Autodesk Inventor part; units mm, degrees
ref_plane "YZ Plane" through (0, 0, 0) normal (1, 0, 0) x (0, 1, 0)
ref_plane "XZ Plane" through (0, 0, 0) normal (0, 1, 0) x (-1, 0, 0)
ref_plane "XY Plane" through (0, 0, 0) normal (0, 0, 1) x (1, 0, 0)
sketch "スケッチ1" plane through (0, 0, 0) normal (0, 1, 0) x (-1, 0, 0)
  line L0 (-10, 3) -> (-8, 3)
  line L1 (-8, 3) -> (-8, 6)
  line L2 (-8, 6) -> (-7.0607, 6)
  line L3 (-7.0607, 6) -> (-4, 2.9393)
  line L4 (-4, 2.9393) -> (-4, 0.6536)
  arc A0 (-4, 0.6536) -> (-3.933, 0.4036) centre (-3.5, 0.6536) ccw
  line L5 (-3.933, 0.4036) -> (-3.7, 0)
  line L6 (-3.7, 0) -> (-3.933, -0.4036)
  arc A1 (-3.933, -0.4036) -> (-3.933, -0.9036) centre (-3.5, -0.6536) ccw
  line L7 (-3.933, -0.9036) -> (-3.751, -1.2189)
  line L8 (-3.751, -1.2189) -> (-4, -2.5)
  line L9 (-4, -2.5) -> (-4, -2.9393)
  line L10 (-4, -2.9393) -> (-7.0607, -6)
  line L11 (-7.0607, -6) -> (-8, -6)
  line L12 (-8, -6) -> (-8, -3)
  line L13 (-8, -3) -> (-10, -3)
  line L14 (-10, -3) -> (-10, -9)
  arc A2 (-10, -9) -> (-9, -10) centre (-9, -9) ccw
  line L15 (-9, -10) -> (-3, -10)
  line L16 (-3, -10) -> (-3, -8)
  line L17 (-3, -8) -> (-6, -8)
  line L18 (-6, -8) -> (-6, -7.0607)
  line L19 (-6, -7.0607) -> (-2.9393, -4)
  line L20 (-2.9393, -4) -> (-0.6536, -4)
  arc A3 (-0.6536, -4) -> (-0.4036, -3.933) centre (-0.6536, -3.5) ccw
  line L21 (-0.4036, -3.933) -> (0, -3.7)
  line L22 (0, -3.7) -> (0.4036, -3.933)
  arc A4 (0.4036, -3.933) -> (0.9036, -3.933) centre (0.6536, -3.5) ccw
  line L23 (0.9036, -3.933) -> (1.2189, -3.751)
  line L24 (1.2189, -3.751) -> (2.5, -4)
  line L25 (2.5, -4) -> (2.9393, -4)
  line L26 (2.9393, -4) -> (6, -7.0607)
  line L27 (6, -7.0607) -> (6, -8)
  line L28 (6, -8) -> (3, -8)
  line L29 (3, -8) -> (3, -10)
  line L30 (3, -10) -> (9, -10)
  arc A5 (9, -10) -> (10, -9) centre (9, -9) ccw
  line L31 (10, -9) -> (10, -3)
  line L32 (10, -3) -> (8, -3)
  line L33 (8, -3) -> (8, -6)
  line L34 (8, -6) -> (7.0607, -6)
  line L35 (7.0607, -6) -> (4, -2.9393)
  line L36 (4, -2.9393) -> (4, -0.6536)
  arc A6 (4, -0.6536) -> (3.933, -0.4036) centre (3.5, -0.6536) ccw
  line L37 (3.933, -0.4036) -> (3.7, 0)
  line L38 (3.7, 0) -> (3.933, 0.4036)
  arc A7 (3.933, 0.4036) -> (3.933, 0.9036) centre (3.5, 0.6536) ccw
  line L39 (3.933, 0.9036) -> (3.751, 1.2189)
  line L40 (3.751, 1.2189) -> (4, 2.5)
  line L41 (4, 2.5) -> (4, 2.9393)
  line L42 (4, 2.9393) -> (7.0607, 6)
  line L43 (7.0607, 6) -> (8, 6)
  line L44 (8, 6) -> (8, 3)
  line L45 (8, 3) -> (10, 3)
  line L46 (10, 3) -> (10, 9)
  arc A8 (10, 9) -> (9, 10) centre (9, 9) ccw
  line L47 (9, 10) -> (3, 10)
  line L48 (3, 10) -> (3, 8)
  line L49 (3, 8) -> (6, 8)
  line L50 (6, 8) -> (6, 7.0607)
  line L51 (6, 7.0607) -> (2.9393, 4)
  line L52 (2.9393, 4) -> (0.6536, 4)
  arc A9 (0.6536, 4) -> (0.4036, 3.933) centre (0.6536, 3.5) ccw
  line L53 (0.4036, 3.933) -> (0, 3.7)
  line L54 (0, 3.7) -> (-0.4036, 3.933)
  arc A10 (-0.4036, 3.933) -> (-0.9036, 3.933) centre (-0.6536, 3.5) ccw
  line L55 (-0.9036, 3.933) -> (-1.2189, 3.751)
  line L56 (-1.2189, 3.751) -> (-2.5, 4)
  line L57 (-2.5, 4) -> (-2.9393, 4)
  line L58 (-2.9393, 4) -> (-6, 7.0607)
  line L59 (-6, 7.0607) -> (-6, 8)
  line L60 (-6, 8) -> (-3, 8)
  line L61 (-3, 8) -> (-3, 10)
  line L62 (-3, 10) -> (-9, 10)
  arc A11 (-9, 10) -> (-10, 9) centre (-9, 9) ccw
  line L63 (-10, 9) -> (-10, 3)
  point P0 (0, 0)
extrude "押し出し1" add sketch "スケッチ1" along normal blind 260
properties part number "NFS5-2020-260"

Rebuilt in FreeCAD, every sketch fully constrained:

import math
import FreeCAD as App
import Part
import Sketcher
from FreeCAD import Vector
Q = App.Units.Quantity

doc = App.newDocument("Part")
body = doc.addObject("PartDesign::Body", "Body")

# Sketch on XZ plane
sketch1 = doc.addObject("Sketcher::SketchObject", "Sketch")
body.addObject(sketch1)
sketch1.AttachmentSupport = (doc.XZ_Plane, [""])
sketch1.MapMode = "FlatFace"
sketch1.addGeometry(Part.LineSegment(Vector(10, 9, 0), Vector(10, 3, 0)), False)
sketch1.addGeometry(Part.LineSegment(Vector(10, 3, 0), Vector(8, 3, 0)), False)
sketch1.addGeometry(Part.LineSegment(Vector(8, 3, 0), Vector(8, 6, 0)), False)
sketch1.addGeometry(Part.LineSegment(Vector(8, 6, 0), Vector(7.0607, 6, 0)), False)
sketch1.addGeometry(Part.LineSegment(Vector(7.0607, 6, 0), Vector(4, 2.9393, 0)), False)
sketch1.addGeometry(Part.LineSegment(Vector(4, 2.9393, 0), Vector(4, 0.6536, 0)), False)
sketch1.addGeometry(Part.ArcOfCircle(Part.Circle(Vector(3.5, 0.6536, 0), Vector(0, 0, 1), 0.5), math.radians(-30.000728), math.radians(0)), False)
sketch1.addGeometry(Part.LineSegment(Vector(3.933, 0.4036, 0), Vector(3.7, 0, 0)), False)
sketch1.addGeometry(Part.LineSegment(Vector(3.7, 0, 0), Vector(3.933, -0.4036, 0)), False)
sketch1.addGeometry(Part.ArcOfCircle(Part.Circle(Vector(3.5, -0.6536, 0), Vector(0, 0, 1), 0.499989), math.radians(-30.000728), math.radians(30.000728)), False)
sketch1.addGeometry(Part.LineSegment(Vector(3.933, -0.9036, 0), Vector(3.751, -1.2189, 0)), False)
sketch1.addGeometry(Part.LineSegment(Vector(3.751, -1.2189, 0), Vector(4, -2.5, 0)), False)
sketch1.addGeometry(Part.LineSegment(Vector(4, -2.5, 0), Vector(4, -2.9393, 0)), False)
sketch1.addGeometry(Part.LineSegment(Vector(4, -2.9393, 0), Vector(7.0607, -6, 0)), False)
sketch1.addGeometry(Part.LineSegment(Vector(7.0607, -6, 0), Vector(8, -6, 0)), False)
sketch1.addGeometry(Part.LineSegment(Vector(8, -6, 0), Vector(8, -3, 0)), False)
sketch1.addGeometry(Part.LineSegment(Vector(8, -3, 0), Vector(10, -3, 0)), False)
sketch1.addGeometry(Part.LineSegment(Vector(10, -3, 0), Vector(10, -9, 0)), False)
sketch1.addGeometry(Part.ArcOfCircle(Part.Circle(Vector(9, -9, 0), Vector(0, 0, 1), 1), math.radians(-90), math.radians(0)), False)
sketch1.addGeometry(Part.LineSegment(Vector(9, -10, 0), Vector(3, -10, 0)), False)
sketch1.addGeometry(Part.LineSegment(Vector(3, -10, 0), Vector(3, -8, 0)), False)
sketch1.addGeometry(Part.LineSegment(Vector(3, -8, 0), Vector(6, -8, 0)), False)
sketch1.addGeometry(Part.LineSegment(Vector(6, -8, 0), Vector(6, -7.0607, 0)), False)
sketch1.addGeometry(Part.LineSegment(Vector(6, -7.0607, 0), Vector(2.9393, -4, 0)), False)
sketch1.addGeometry(Part.LineSegment(Vector(2.9393, -4, 0), Vector(0.6536, -4, 0)), False)
sketch1.addGeometry(Part.ArcOfCircle(Part.Circle(Vector(0.6536, -3.5, 0), Vector(0, 0, 1), 0.5), math.radians(-120.000728), math.radians(-90)), False)
sketch1.addGeometry(Part.LineSegment(Vector(0.4036, -3.933, 0), Vector(0, -3.7, 0)), False)
sketch1.addGeometry(Part.LineSegment(Vector(0, -3.7, 0), Vector(-0.4036, -3.933, 0)), False)
sketch1.addGeometry(Part.ArcOfCircle(Part.Circle(Vector(-0.6536, -3.5, 0), Vector(0, 0, 1), 0.499989), math.radians(-120.000728), math.radians(-59.999272)), False)
sketch1.addGeometry(Part.LineSegment(Vector(-0.9036, -3.933, 0), Vector(-1.2189, -3.751, 0)), False)
sketch1.addGeometry(Part.LineSegment(Vector(-1.2189, -3.751, 0), Vector(-2.5, -4, 0)), False)
sketch1.addGeometry(Part.LineSegment(Vector(-2.5, -4, 0), Vector(-2.9393, -4, 0)), False)
sketch1.addGeometry(Part.LineSegment(Vector(-2.9393, -4, 0), Vector(-6, -7.0607, 0)), False)
sketch1.addGeometry(Part.LineSegment(Vector(-6, -7.0607, 0), Vector(-6, -8, 0)), False)
sketch1.addGeometry(Part.LineSegment(Vector(-6, -8, 0), Vector(-3, -8, 0)), False)
sketch1.addGeometry(Part.LineSegment(Vector(-3, -8, 0), Vector(-3, -10, 0)), False)
sketch1.addGeometry(Part.LineSegment(Vector(-3, -10, 0), Vector(-9, -10, 0)), False)
sketch1.addGeometry(Part.ArcOfCircle(Part.Circle(Vector(-9, -9, 0), Vector(0, 0, 1), 1), math.radians(180), math.radians(270)), False)
sketch1.addGeometry(Part.LineSegment(Vector(-10, -9, 0), Vector(-10, -3, 0)), False)
sketch1.addGeometry(Part.LineSegment(Vector(-10, -3, 0), Vector(-8, -3, 0)), False)
sketch1.addGeometry(Part.LineSegment(Vector(-8, -3, 0), Vector(-8, -6, 0)), False)
sketch1.addGeometry(Part.LineSegment(Vector(-8, -6, 0), Vector(-7.0607, -6, 0)), False)
sketch1.addGeometry(Part.LineSegment(Vector(-7.0607, -6, 0), Vector(-4, -2.9393, 0)), False)
sketch1.addGeometry(Part.LineSegment(Vector(-4, -2.9393, 0), Vector(-4, -0.6536, 0)), False)
sketch1.addGeometry(Part.ArcOfCircle(Part.Circle(Vector(-3.5, -0.6536, 0), Vector(0, 0, 1), 0.5), math.radians(149.999272), math.radians(180)), False)
sketch1.addGeometry(Part.LineSegment(Vector(-3.933, -0.4036, 0), Vector(-3.7, 0, 0)), False)
sketch1.addGeometry(Part.LineSegment(Vector(-3.7, 0, 0), Vector(-3.933, 0.4036, 0)), False)
sketch1.addGeometry(Part.ArcOfCircle(Part.Circle(Vector(-3.5, 0.6536, 0), Vector(0, 0, 1), 0.499989), math.radians(149.999272), math.radians(210.000728)), False)
sketch1.addGeometry(Part.LineSegment(Vector(-3.933, 0.9036, 0), Vector(-3.751, 1.2189, 0)), False)
sketch1.addGeometry(Part.LineSegment(Vector(-3.751, 1.2189, 0), Vector(-4, 2.5, 0)), False)
sketch1.addGeometry(Part.LineSegment(Vector(-4, 2.5, 0), Vector(-4, 2.9393, 0)), False)
sketch1.addGeometry(Part.LineSegment(Vector(-4, 2.9393, 0), Vector(-7.0607, 6, 0)), False)
sketch1.addGeometry(Part.LineSegment(Vector(-7.0607, 6, 0), Vector(-8, 6, 0)), False)
sketch1.addGeometry(Part.LineSegment(Vector(-8, 6, 0), Vector(-8, 3, 0)), False)
sketch1.addGeometry(Part.LineSegment(Vector(-8, 3, 0), Vector(-10, 3, 0)), False)
sketch1.addGeometry(Part.LineSegment(Vector(-10, 3, 0), Vector(-10, 9, 0)), False)
sketch1.addGeometry(Part.ArcOfCircle(Part.Circle(Vector(-9, 9, 0), Vector(0, 0, 1), 1), math.radians(90), math.radians(180)), False)
sketch1.addGeometry(Part.LineSegment(Vector(-9, 10, 0), Vector(-3, 10, 0)), False)
sketch1.addGeometry(Part.LineSegment(Vector(-3, 10, 0), Vector(-3, 8, 0)), False)
sketch1.addGeometry(Part.LineSegment(Vector(-3, 8, 0), Vector(-6, 8, 0)), False)
sketch1.addGeometry(Part.LineSegment(Vector(-6, 8, 0), Vector(-6, 7.0607, 0)), False)
sketch1.addGeometry(Part.LineSegment(Vector(-6, 7.0607, 0), Vector(-2.9393, 4, 0)), False)
sketch1.addGeometry(Part.LineSegment(Vector(-2.9393, 4, 0), Vector(-0.6536, 4, 0)), False)
sketch1.addGeometry(Part.ArcOfCircle(Part.Circle(Vector(-0.6536, 3.5, 0), Vector(0, 0, 1), 0.5), math.radians(59.999272), math.radians(90)), False)
sketch1.addGeometry(Part.LineSegment(Vector(-0.4036, 3.933, 0), Vector(0, 3.7, 0)), False)
sketch1.addGeometry(Part.LineSegment(Vector(0, 3.7, 0), Vector(0.4036, 3.933, 0)), False)
sketch1.addGeometry(Part.ArcOfCircle(Part.Circle(Vector(0.6536, 3.5, 0), Vector(0, 0, 1), 0.499989), math.radians(59.999272), math.radians(120.000728)), False)
sketch1.addGeometry(Part.LineSegment(Vector(0.9036, 3.933, 0), Vector(1.2189, 3.751, 0)), False)
sketch1.addGeometry(Part.LineSegment(Vector(1.2189, 3.751, 0), Vector(2.5, 4, 0)), False)
sketch1.addGeometry(Part.LineSegment(Vector(2.5, 4, 0), Vector(2.9393, 4, 0)), False)
sketch1.addGeometry(Part.LineSegment(Vector(2.9393, 4, 0), Vector(6, 7.0607, 0)), False)
sketch1.addGeometry(Part.LineSegment(Vector(6, 7.0607, 0), Vector(6, 8, 0)), False)
sketch1.addGeometry(Part.LineSegment(Vector(6, 8, 0), Vector(3, 8, 0)), False)
sketch1.addGeometry(Part.LineSegment(Vector(3, 8, 0), Vector(3, 10, 0)), False)
sketch1.addGeometry(Part.LineSegment(Vector(3, 10, 0), Vector(9, 10, 0)), False)
sketch1.addGeometry(Part.ArcOfCircle(Part.Circle(Vector(9, 9, 0), Vector(0, 0, 1), 1), math.radians(0), math.radians(90)), False)
sketch1.addConstraint(Sketcher.Constraint("Coincident", 0, 2, 1, 1))
sketch1.addConstraint(Sketcher.Constraint("Coincident", 1, 2, 2, 1))
sketch1.addConstraint(Sketcher.Constraint("Coincident", 2, 2, 3, 1))
sketch1.addConstraint(Sketcher.Constraint("Coincident", 3, 2, 4, 1))
sketch1.addConstraint(Sketcher.Constraint("Coincident", 4, 2, 5, 1))
sketch1.addConstraint(Sketcher.Constraint("Tangent", 5, 2, 6, 2))
sketch1.addConstraint(Sketcher.Constraint("Tangent", 6, 1, 7, 1))
sketch1.addConstraint(Sketcher.Constraint("Coincident", 7, 2, 8, 1))
sketch1.addConstraint(Sketcher.Constraint("Tangent", 8, 2, 9, 2))
sketch1.addConstraint(Sketcher.Constraint("Tangent", 9, 1, 10, 1))
sketch1.addConstraint(Sketcher.Constraint("Coincident", 10, 2, 11, 1))
sketch1.addConstraint(Sketcher.Constraint("Coincident", 11, 2, 12, 1))
sketch1.addConstraint(Sketcher.Constraint("Coincident", 12, 2, 13, 1))
sketch1.addConstraint(Sketcher.Constraint("Coincident", 13, 2, 14, 1))
sketch1.addConstraint(Sketcher.Constraint("Coincident", 14, 2, 15, 1))
sketch1.addConstraint(Sketcher.Constraint("Coincident", 15, 2, 16, 1))
sketch1.addConstraint(Sketcher.Constraint("Coincident", 16, 2, 17, 1))
sketch1.addConstraint(Sketcher.Constraint("Tangent", 17, 2, 18, 2))
sketch1.addConstraint(Sketcher.Constraint("Tangent", 18, 1, 19, 1))
sketch1.addConstraint(Sketcher.Constraint("Coincident", 19, 2, 20, 1))
sketch1.addConstraint(Sketcher.Constraint("Coincident", 20, 2, 21, 1))
sketch1.addConstraint(Sketcher.Constraint("Coincident", 21, 2, 22, 1))
sketch1.addConstraint(Sketcher.Constraint("Coincident", 22, 2, 23, 1))
sketch1.addConstraint(Sketcher.Constraint("Coincident", 23, 2, 24, 1))
sketch1.addConstraint(Sketcher.Constraint("Tangent", 24, 2, 25, 2))
sketch1.addConstraint(Sketcher.Constraint("Tangent", 25, 1, 26, 1))
sketch1.addConstraint(Sketcher.Constraint("Coincident", 26, 2, 27, 1))
sketch1.addConstraint(Sketcher.Constraint("Tangent", 27, 2, 28, 2))
sketch1.addConstraint(Sketcher.Constraint("Tangent", 28, 1, 29, 1))
sketch1.addConstraint(Sketcher.Constraint("Coincident", 29, 2, 30, 1))
sketch1.addConstraint(Sketcher.Constraint("Coincident", 30, 2, 31, 1))
sketch1.addConstraint(Sketcher.Constraint("Coincident", 31, 2, 32, 1))
sketch1.addConstraint(Sketcher.Constraint("Coincident", 32, 2, 33, 1))
sketch1.addConstraint(Sketcher.Constraint("Coincident", 33, 2, 34, 1))
sketch1.addConstraint(Sketcher.Constraint("Coincident", 34, 2, 35, 1))
sketch1.addConstraint(Sketcher.Constraint("Coincident", 35, 2, 36, 1))
sketch1.addConstraint(Sketcher.Constraint("Tangent", 36, 2, 37, 2))
sketch1.addConstraint(Sketcher.Constraint("Tangent", 37, 1, 38, 1))
sketch1.addConstraint(Sketcher.Constraint("Coincident", 38, 2, 39, 1))
sketch1.addConstraint(Sketcher.Constraint("Coincident", 39, 2, 40, 1))
sketch1.addConstraint(Sketcher.Constraint("Coincident", 40, 2, 41, 1))
sketch1.addConstraint(Sketcher.Constraint("Coincident", 41, 2, 42, 1))
sketch1.addConstraint(Sketcher.Constraint("Coincident", 42, 2, 43, 1))
sketch1.addConstraint(Sketcher.Constraint("Tangent", 43, 2, 44, 2))
sketch1.addConstraint(Sketcher.Constraint("Tangent", 44, 1, 45, 1))
sketch1.addConstraint(Sketcher.Constraint("Coincident", 45, 2, 46, 1))
sketch1.addConstraint(Sketcher.Constraint("Tangent", 46, 2, 47, 2))
sketch1.addConstraint(Sketcher.Constraint("Tangent", 47, 1, 48, 1))
sketch1.addConstraint(Sketcher.Constraint("Coincident", 48, 2, 49, 1))
sketch1.addConstraint(Sketcher.Constraint("Coincident", 49, 2, 50, 1))
sketch1.addConstraint(Sketcher.Constraint("Coincident", 50, 2, 51, 1))
sketch1.addConstraint(Sketcher.Constraint("Coincident", 51, 2, 52, 1))
sketch1.addConstraint(Sketcher.Constraint("Coincident", 52, 2, 53, 1))
sketch1.addConstraint(Sketcher.Constraint("Coincident", 53, 2, 54, 1))
sketch1.addConstraint(Sketcher.Constraint("Coincident", 54, 2, 55, 1))
sketch1.addConstraint(Sketcher.Constraint("Tangent", 55, 2, 56, 2))
sketch1.addConstraint(Sketcher.Constraint("Tangent", 56, 1, 57, 1))
sketch1.addConstraint(Sketcher.Constraint("Coincident", 57, 2, 58, 1))
sketch1.addConstraint(Sketcher.Constraint("Coincident", 58, 2, 59, 1))
sketch1.addConstraint(Sketcher.Constraint("Coincident", 59, 2, 60, 1))
sketch1.addConstraint(Sketcher.Constraint("Coincident", 60, 2, 61, 1))
sketch1.addConstraint(Sketcher.Constraint("Coincident", 61, 2, 62, 1))
sketch1.addConstraint(Sketcher.Constraint("Tangent", 62, 2, 63, 2))
sketch1.addConstraint(Sketcher.Constraint("Tangent", 63, 1, 64, 1))
sketch1.addConstraint(Sketcher.Constraint("Coincident", 64, 2, 65, 1))
sketch1.addConstraint(Sketcher.Constraint("Tangent", 65, 2, 66, 2))
sketch1.addConstraint(Sketcher.Constraint("Tangent", 66, 1, 67, 1))
sketch1.addConstraint(Sketcher.Constraint("Coincident", 67, 2, 68, 1))
sketch1.addConstraint(Sketcher.Constraint("Coincident", 68, 2, 69, 1))
sketch1.addConstraint(Sketcher.Constraint("Coincident", 69, 2, 70, 1))
sketch1.addConstraint(Sketcher.Constraint("Coincident", 70, 2, 71, 1))
sketch1.addConstraint(Sketcher.Constraint("Coincident", 71, 2, 72, 1))
sketch1.addConstraint(Sketcher.Constraint("Coincident", 72, 2, 73, 1))
sketch1.addConstraint(Sketcher.Constraint("Coincident", 73, 2, 74, 1))
sketch1.addConstraint(Sketcher.Constraint("Tangent", 74, 2, 75, 2))
sketch1.addConstraint(Sketcher.Constraint("Tangent", 75, 1, 0, 1))
sketch1.addConstraint(Sketcher.Constraint("Vertical", 0))
sketch1.addConstraint(Sketcher.Constraint("Horizontal", 1))
sketch1.addConstraint(Sketcher.Constraint("Vertical", 2))
sketch1.addConstraint(Sketcher.Constraint("Horizontal", 3))
sketch1.addConstraint(Sketcher.Constraint("Vertical", 5))
sketch1.addConstraint(Sketcher.Constraint("Vertical", 12))
sketch1.addConstraint(Sketcher.Constraint("Horizontal", 14))
sketch1.addConstraint(Sketcher.Constraint("Vertical", 15))
sketch1.addConstraint(Sketcher.Constraint("Horizontal", 16))
sketch1.addConstraint(Sketcher.Constraint("Vertical", 17))
sketch1.addConstraint(Sketcher.Constraint("Horizontal", 19))
sketch1.addConstraint(Sketcher.Constraint("Vertical", 20))
sketch1.addConstraint(Sketcher.Constraint("Horizontal", 21))
sketch1.addConstraint(Sketcher.Constraint("Vertical", 22))
sketch1.addConstraint(Sketcher.Constraint("Horizontal", 24))
sketch1.addConstraint(Sketcher.Constraint("Horizontal", 31))
sketch1.addConstraint(Sketcher.Constraint("Vertical", 33))
sketch1.addConstraint(Sketcher.Constraint("Horizontal", 34))
sketch1.addConstraint(Sketcher.Constraint("Vertical", 35))
sketch1.addConstraint(Sketcher.Constraint("Horizontal", 36))
sketch1.addConstraint(Sketcher.Constraint("Vertical", 38))
sketch1.addConstraint(Sketcher.Constraint("Horizontal", 39))
sketch1.addConstraint(Sketcher.Constraint("Vertical", 40))
sketch1.addConstraint(Sketcher.Constraint("Horizontal", 41))
sketch1.addConstraint(Sketcher.Constraint("Vertical", 43))
sketch1.addConstraint(Sketcher.Constraint("Vertical", 50))
sketch1.addConstraint(Sketcher.Constraint("Horizontal", 52))
sketch1.addConstraint(Sketcher.Constraint("Vertical", 53))
sketch1.addConstraint(Sketcher.Constraint("Horizontal", 54))
sketch1.addConstraint(Sketcher.Constraint("Vertical", 55))
sketch1.addConstraint(Sketcher.Constraint("Horizontal", 57))
sketch1.addConstraint(Sketcher.Constraint("Vertical", 58))
sketch1.addConstraint(Sketcher.Constraint("Horizontal", 59))
sketch1.addConstraint(Sketcher.Constraint("Vertical", 60))
sketch1.addConstraint(Sketcher.Constraint("Horizontal", 62))
sketch1.addConstraint(Sketcher.Constraint("Horizontal", 69))
sketch1.addConstraint(Sketcher.Constraint("Vertical", 71))
sketch1.addConstraint(Sketcher.Constraint("Horizontal", 72))
sketch1.addConstraint(Sketcher.Constraint("Vertical", 73))
sketch1.addConstraint(Sketcher.Constraint("Horizontal", 74))
sketch1.addConstraint(Sketcher.Constraint("Equal", 6, 9))
sketch1.addConstraint(Sketcher.Constraint("Equal", 9, 25))
sketch1.addConstraint(Sketcher.Constraint("Equal", 25, 28))
sketch1.addConstraint(Sketcher.Constraint("Equal", 18, 37))
sketch1.addConstraint(Sketcher.Constraint("Equal", 28, 44))
sketch1.addConstraint(Sketcher.Constraint("Equal", 44, 47))
sketch1.addConstraint(Sketcher.Constraint("Equal", 37, 56))
sketch1.addConstraint(Sketcher.Constraint("Equal", 47, 63))
sketch1.addConstraint(Sketcher.Constraint("Equal", 63, 66))
sketch1.addConstraint(Sketcher.Constraint("Equal", 56, 75))
sketch1.addConstraint(Sketcher.Constraint("Symmetric", 6, 3, 44, 3, -1, 1))
sketch1.addConstraint(Sketcher.Constraint("Symmetric", 9, 3, 47, 3, -1, 1))
sketch1.addConstraint(Sketcher.Constraint("Symmetric", 18, 3, 56, 3, -1, 1))
sketch1.addConstraint(Sketcher.Constraint("Symmetric", 25, 3, 63, 3, -1, 1))
sketch1.addConstraint(Sketcher.Constraint("Symmetric", 28, 3, 66, 3, -1, 1))
sketch1.addConstraint(Sketcher.Constraint("Symmetric", 37, 3, 75, 3, -1, 1))
sketch1.addConstraint(Sketcher.Constraint("Symmetric", 1, 2, 39, 2, -1, 1))
sketch1.addConstraint(Sketcher.Constraint("Symmetric", 3, 2, 41, 2, -1, 1))
sketch1.addConstraint(Sketcher.Constraint("Symmetric", 7, 2, 45, 2, -1, 1))
sketch1.addConstraint(Sketcher.Constraint("Symmetric", 10, 2, 48, 2, -1, 1))
sketch1.addConstraint(Sketcher.Constraint("Symmetric", 11, 2, 49, 2, -1, 1))
sketch1.addConstraint(Sketcher.Constraint("Symmetric", 13, 2, 51, 2, -1, 1))
sketch1.addConstraint(Sketcher.Constraint("Symmetric", 15, 2, 53, 2, -1, 1))
sketch1.addConstraint(Sketcher.Constraint("Symmetric", 20, 2, 58, 2, -1, 1))
sketch1.addConstraint(Sketcher.Constraint("Symmetric", 22, 2, 60, 2, -1, 1))
sketch1.addConstraint(Sketcher.Constraint("Symmetric", 26, 2, 64, 2, -1, 1))
sketch1.addConstraint(Sketcher.Constraint("Symmetric", 29, 2, 67, 2, -1, 1))
sketch1.addConstraint(Sketcher.Constraint("Symmetric", 30, 2, 68, 2, -1, 1))
sketch1.addConstraint(Sketcher.Constraint("Symmetric", 32, 2, 70, 2, -1, 1))
sketch1.addConstraint(Sketcher.Constraint("Symmetric", 34, 2, 72, 2, -1, 1))
sketch1.addConstraint(Sketcher.Constraint("Symmetric", 25, 3, 28, 3, -2))
sketch1.addConstraint(Sketcher.Constraint("Symmetric", 18, 3, 37, 3, -2))
sketch1.addConstraint(Sketcher.Constraint("Symmetric", 9, 3, 44, 3, -2))
sketch1.addConstraint(Sketcher.Constraint("Symmetric", 23, 2, 31, 2, -2))
sketch1.addConstraint(Sketcher.Constraint("Symmetric", 22, 2, 32, 2, -2))
sketch1.addConstraint(Sketcher.Constraint("Symmetric", 20, 2, 34, 2, -2))
sketch1.addConstraint(Sketcher.Constraint("Symmetric", 15, 2, 39, 2, -2))
sketch1.addConstraint(Sketcher.Constraint("Symmetric", 13, 2, 41, 2, -2))
sketch1.addConstraint(Sketcher.Constraint("Symmetric", 12, 2, 42, 2, -2))
sketch1.addConstraint(Sketcher.Constraint("PointOnObject", 7, 2, -1))
sketch1.addConstraint(Sketcher.Constraint("PointOnObject", 26, 2, -2))
sketch1.addConstraint(Sketcher.Constraint("Parallel", 7, 10))
sketch1.addConstraint(Sketcher.Constraint("Perpendicular", 4, 13))
sketch1.addConstraint(Sketcher.Constraint("Parallel", 13, 23))
sketch1.addConstraint(Sketcher.Constraint("Perpendicular", 10, 26))
sketch1.addConstraint(Sketcher.Constraint("Parallel", 26, 29))
sketch1.addConstraint(Sketcher.Constraint("Perpendicular", 11, 30))
sketch1.addConstraint(Sketcher.Constraint("Perpendicular", 23, 32))
sketch1.addConstraint(Sketcher.Constraint("Perpendicular", 42, 51))
sketch1.addConstraint(Sketcher.Constraint("Parallel", 51, 61))
sketch1.addConstraint(Sketcher.Constraint("Perpendicular", 61, 70))
sketch1.addConstraint(Sketcher.Constraint("Equal", 74, 0))
sketch1.addConstraint(Sketcher.Constraint("Equal", 72, 2))
sketch1.addConstraint(Sketcher.Constraint("Equal", 62, 5))
sketch1.addConstraint(Sketcher.Constraint("Equal", 69, 12))
sketch1.addConstraint(Sketcher.Constraint("Equal", 54, 20))
sketch1.addConstraint(Sketcher.Constraint("Equal", 52, 22))
sketch1.addConstraint(Sketcher.Constraint("Equal", 13, 23))
sketch1.addConstraint(Sketcher.Constraint("Equal", 8, 26))
sketch1.addConstraint(Sketcher.Constraint("Radius", 18, 1.0))
sketch1.addConstraint(Sketcher.Constraint("Radius", 6, 0.5))
sketch1.addConstraint(Sketcher.Constraint("DistanceX", 1, 2, 1, 1, 2.0))
sketch1.addConstraint(Sketcher.Constraint("DistanceX", 19, 2, 19, 1, 6.0))
sketch1.addConstraint(Sketcher.Constraint("DistanceX", 21, 1, 21, 2, 3.0))
sketch1.addConstraint(Sketcher.Constraint("Angle", 11, Q("-79.001 deg")))
sketch1.addConstraint(Sketcher.Constraint("DistanceX", -1, 1, 18, 3, 9.0))
sketch1.addConstraint(Sketcher.Constraint("DistanceX", -1, 1, 4, 2, 4.0))
sketch1.addConstraint(Sketcher.Constraint("DistanceX", -1, 1, 7, 2, 3.7))
sketch1.addConstraint(Sketcher.Constraint("DistanceY", 11, 2, -1, 1, 2.5))
sketch1.addConstraint(Sketcher.Constraint("Distance", 7, 0.466))
sketch1.addConstraint(Sketcher.Constraint("DistanceX", 3, 2, 3, 1, 0.9393))
pad1 = doc.addObject("PartDesign::Pad", "Pad")
body.addObject(pad1)
pad1.Profile = sketch1
pad1.Length = 260
pad1.Reversed = True

doc.recompute()
